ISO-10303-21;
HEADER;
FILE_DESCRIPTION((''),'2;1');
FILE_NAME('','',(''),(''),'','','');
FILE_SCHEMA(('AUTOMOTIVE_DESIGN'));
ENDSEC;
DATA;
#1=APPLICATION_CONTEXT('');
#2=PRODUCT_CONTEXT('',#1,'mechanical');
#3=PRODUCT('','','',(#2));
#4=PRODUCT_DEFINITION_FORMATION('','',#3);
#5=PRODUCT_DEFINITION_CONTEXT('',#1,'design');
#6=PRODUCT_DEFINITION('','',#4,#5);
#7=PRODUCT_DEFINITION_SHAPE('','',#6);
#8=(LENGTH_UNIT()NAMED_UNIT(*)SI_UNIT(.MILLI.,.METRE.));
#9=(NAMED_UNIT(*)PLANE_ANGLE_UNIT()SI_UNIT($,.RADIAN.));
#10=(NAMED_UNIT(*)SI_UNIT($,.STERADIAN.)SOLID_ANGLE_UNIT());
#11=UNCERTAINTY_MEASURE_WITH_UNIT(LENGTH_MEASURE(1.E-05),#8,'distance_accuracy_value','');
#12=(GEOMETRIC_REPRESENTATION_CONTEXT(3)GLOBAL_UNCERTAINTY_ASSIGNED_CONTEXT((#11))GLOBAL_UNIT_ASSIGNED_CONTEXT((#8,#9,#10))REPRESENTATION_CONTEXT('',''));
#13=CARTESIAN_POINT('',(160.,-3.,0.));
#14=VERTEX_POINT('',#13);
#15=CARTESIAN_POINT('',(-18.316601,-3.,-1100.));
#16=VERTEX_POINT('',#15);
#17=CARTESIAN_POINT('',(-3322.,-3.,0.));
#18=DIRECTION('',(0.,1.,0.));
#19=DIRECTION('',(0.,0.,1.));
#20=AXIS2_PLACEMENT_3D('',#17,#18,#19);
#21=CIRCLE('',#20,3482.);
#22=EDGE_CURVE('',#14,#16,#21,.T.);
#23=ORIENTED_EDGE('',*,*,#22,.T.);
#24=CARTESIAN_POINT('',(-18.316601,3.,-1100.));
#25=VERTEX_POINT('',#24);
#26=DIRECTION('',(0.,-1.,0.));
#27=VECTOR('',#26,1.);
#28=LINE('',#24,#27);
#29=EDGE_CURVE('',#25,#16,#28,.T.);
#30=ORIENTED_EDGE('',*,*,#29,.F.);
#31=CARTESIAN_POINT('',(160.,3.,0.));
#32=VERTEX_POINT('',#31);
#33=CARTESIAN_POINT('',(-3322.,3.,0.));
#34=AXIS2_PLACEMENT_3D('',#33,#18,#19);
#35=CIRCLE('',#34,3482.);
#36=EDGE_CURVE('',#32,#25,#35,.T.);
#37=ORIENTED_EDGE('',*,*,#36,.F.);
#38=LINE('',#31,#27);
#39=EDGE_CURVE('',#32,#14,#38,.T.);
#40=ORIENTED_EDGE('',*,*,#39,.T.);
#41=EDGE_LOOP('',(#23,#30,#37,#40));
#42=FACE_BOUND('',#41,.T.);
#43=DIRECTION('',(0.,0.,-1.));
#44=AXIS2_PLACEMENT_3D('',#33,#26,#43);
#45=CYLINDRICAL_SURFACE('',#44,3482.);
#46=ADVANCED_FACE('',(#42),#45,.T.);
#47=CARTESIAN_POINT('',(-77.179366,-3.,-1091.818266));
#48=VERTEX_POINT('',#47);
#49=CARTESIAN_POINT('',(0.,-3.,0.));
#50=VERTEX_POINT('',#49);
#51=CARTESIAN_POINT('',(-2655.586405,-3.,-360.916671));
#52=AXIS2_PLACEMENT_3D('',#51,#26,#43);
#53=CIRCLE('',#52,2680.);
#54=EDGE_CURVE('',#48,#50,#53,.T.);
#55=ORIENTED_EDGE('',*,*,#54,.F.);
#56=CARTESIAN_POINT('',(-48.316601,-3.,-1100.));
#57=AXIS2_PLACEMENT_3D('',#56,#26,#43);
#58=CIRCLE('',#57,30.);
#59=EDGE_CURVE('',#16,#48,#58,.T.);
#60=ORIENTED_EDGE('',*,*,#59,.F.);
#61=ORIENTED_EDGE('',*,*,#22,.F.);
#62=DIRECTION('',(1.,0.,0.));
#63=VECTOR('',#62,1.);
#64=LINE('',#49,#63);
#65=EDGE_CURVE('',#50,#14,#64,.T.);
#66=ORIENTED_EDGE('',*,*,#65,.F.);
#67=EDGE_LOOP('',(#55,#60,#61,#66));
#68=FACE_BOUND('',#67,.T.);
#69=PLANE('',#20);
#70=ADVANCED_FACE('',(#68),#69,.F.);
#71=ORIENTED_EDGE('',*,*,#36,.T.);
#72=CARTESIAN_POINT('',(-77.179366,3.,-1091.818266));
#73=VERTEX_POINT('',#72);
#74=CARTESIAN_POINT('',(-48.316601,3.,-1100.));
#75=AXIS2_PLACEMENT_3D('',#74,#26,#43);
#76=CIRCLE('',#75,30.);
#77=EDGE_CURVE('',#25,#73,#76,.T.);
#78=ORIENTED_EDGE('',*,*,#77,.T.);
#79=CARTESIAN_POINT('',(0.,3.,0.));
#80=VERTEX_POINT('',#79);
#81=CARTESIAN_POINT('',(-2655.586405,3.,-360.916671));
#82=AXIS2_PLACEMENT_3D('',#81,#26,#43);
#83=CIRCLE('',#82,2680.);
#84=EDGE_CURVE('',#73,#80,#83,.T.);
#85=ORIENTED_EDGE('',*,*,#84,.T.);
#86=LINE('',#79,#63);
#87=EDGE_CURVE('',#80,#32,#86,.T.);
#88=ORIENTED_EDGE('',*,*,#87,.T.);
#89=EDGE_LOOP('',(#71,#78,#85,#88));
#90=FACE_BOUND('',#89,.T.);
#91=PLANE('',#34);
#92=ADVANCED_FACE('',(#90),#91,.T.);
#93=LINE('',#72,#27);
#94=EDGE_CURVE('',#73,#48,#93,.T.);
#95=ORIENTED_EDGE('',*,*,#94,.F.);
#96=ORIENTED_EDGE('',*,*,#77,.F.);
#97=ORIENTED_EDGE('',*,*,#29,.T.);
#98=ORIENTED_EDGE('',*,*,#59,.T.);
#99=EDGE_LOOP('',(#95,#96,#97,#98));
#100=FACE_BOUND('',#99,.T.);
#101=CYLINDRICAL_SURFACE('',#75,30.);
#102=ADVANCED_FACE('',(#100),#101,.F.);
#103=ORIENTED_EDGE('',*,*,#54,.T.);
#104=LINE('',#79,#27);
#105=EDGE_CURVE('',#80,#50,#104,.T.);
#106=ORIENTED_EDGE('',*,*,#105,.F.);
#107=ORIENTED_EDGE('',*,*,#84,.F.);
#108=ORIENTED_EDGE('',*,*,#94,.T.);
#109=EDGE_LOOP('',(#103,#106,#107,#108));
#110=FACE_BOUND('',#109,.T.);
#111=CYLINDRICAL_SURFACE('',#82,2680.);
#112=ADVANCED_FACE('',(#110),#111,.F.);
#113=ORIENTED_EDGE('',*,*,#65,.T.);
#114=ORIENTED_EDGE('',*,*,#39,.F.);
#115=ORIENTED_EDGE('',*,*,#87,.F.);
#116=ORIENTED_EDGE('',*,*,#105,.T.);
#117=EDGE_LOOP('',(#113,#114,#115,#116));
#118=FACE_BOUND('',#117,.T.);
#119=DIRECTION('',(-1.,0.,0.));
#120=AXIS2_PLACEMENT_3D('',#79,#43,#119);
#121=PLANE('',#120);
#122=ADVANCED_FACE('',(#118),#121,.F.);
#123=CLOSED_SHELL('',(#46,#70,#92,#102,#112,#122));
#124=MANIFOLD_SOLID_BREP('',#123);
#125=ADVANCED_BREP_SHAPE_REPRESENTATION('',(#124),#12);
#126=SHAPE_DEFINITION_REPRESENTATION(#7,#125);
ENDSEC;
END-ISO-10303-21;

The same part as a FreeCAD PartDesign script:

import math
import FreeCAD as App
import Part
import Sketcher

V = App.Vector
Q = App.Units.Quantity

doc = App.newDocument("Part")
body = doc.addObject("PartDesign::Body", "Body")

sketch1 = doc.addObject("Sketcher::SketchObject", "Sketch")
body.addObject(sketch1)
sketch1.AttachmentSupport = (doc.XZ_Plane, [""])
sketch1.MapMode = "FlatFace"
sketch1.addGeometry(Part.LineSegment(V(0, 0, 0), V(160, 0, 0)), False)
sketch1.addGeometry(Part.ArcOfCircle(Part.Circle(V(-3322, 0, 0), V(0, 0, 1), 3482), math.radians(-18.42), math.radians(0)), False)
sketch1.addGeometry(Part.ArcOfCircle(Part.Circle(V(-48, -1100, 0), V(0, 0, 1), 30), math.radians(0), math.radians(164)), False)
sketch1.addGeometry(Part.ArcOfCircle(Part.Circle(V(-2656, -361, 0), V(0, 0, 1), 2680), math.radians(-16), math.radians(8)), False)
sketch1.addConstraint(Sketcher.Constraint("Coincident", 0, 2, 1, 2))
sketch1.addConstraint(Sketcher.Constraint("Coincident", 1, 1, 2, 1))
sketch1.addConstraint(Sketcher.Constraint("Tangent", 2, 2, 3, 1))
sketch1.addConstraint(Sketcher.Constraint("Coincident", 3, 2, 0, 1))
sketch1.addConstraint(Sketcher.Constraint("Horizontal", 0))
sketch1.addConstraint(Sketcher.Constraint("PointOnObject", 1, 3, -1))
sketch1.addConstraint(Sketcher.Constraint("PointOnObject", 0, 2, -1))
sketch1.addConstraint(Sketcher.Constraint("Radius", 1, Q("3482 mm")))
sketch1.addConstraint(Sketcher.Constraint("Radius", 2, Q("30 mm")))
sketch1.addConstraint(Sketcher.Constraint("Radius", 3, Q("2680 mm")))
sketch1.addConstraint(Sketcher.Constraint("DistanceX", 0, 1, 0, 2, Q("160 mm")))
sketch1.addConstraint(Sketcher.Constraint("DistanceX", 1, 3, -1, 1, Q("3322 mm")))
sketch1.addConstraint(Sketcher.Constraint("DistanceY", 2, 3, -1, 1, Q("1100 mm")))
sketch1.addConstraint(Sketcher.Constraint("DistanceX", 2, 3, -1, 1, Q("48.316601 mm")))
pad1 = doc.addObject("PartDesign::Pad", "Pad")
body.addObject(pad1)
pad1.Profile = sketch1
pad1.Length = 6
pad1.Midplane = True

doc.recompute()
